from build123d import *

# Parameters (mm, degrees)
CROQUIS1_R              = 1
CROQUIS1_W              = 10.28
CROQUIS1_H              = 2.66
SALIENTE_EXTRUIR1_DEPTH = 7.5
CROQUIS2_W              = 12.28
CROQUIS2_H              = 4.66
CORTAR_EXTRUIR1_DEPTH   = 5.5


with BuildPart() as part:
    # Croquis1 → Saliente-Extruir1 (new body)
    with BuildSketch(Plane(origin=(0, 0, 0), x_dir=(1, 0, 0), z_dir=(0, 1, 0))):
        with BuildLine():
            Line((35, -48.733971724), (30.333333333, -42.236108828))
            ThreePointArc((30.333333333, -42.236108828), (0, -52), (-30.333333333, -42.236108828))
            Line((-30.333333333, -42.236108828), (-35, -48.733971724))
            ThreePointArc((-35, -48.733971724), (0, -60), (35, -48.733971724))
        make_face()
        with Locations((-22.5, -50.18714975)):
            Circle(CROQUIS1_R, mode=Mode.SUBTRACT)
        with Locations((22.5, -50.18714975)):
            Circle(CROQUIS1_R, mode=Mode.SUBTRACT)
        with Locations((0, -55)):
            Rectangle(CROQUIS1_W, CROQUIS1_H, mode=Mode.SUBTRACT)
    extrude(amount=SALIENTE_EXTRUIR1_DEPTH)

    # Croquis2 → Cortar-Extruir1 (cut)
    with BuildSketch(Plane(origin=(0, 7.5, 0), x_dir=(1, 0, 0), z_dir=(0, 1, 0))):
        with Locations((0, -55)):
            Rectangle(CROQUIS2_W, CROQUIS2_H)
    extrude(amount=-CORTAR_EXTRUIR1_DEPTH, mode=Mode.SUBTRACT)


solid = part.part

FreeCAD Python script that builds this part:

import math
import FreeCAD as App
import Part
import Sketcher
Q = App.Units.Quantity

doc = App.newDocument("Part")
params = doc.addObject("Spreadsheet::Sheet", "Params")
for row, (alias, value) in enumerate([
    ("sketch1_diameter", "2 mm"),
    ("sketch1_radius", "52 mm"),
    ("sketch1_radius2", "60 mm"),
    ("sketch1_width", "10.28 mm"),
    ("sketch1_height", "2.66 mm"),
    ("pad1_length", "7.5 mm"),
    ("sketch2_width", "12.28 mm"),
    ("sketch2_height", "4.66 mm"),
    ("pocket1_length", "5.5 mm"),
], start=1):
    params.set(f"A{row}", alias)
    params.set(f"B{row}", "=" + value)
    params.setAlias(f"B{row}", alias)

body = doc.addObject("PartDesign::Body", "Body")

# Sketch on XZ plane
sketch1 = doc.addObject("Sketcher::SketchObject", "Sketch")
body.addObject(sketch1)
sketch1.AttachmentSupport = (doc.XZ_Plane, [""])
sketch1.MapMode = "FlatFace"
sketch1.addGeometry(Part.LineSegment(App.Vector(35, 48.733972, 0), App.Vector(30.333333, 42.236109, 0)), False)
sketch1.addGeometry(Part.ArcOfCircle(Part.Circle(App.Vector(0, 0, 0), App.Vector(0, 0, 1), 52), math.radians(54.314665), math.radians(125.685335)), False)
sketch1.addGeometry(Part.LineSegment(App.Vector(-30.333333, 42.236109, 0), App.Vector(-35, 48.733972, 0)), False)
sketch1.addGeometry(Part.ArcOfCircle(Part.Circle(App.Vector(0, 0, 0), App.Vector(0, 0, 1), 60), math.radians(54.314665), math.radians(125.685335)), False)
sketch1.addGeometry(Part.LineSegment(App.Vector(5.14, 56.33, 0), App.Vector(-5.14, 56.33, 0)), False)
sketch1.addGeometry(Part.LineSegment(App.Vector(-5.14, 56.33, 0), App.Vector(-5.14, 53.67, 0)), False)
sketch1.addGeometry(Part.LineSegment(App.Vector(-5.14, 53.67, 0), App.Vector(5.14, 53.67, 0)), False)
sketch1.addGeometry(Part.LineSegment(App.Vector(5.14, 53.67, 0), App.Vector(5.14, 56.33, 0)), False)
sketch1.addGeometry(Part.Circle(App.Vector(-22.5, 50.18715, 0), App.Vector(0, 0, 1), 1), False)
sketch1.addGeometry(Part.Circle(App.Vector(22.5, 50.18715, 0), App.Vector(0, 0, 1), 1), False)
sketch1.addConstraint(Sketcher.Constraint("Coincident", 0, 2, 1, 1))
sketch1.addConstraint(Sketcher.Constraint("Coincident", 1, 2, 2, 1))
sketch1.addConstraint(Sketcher.Constraint("Coincident", 2, 2, 3, 2))
sketch1.addConstraint(Sketcher.Constraint("Coincident", 3, 1, 0, 1))
sketch1.addConstraint(Sketcher.Constraint("Coincident", 4, 2, 5, 1))
sketch1.addConstraint(Sketcher.Constraint("Coincident", 5, 2, 6, 1))
sketch1.addConstraint(Sketcher.Constraint("Coincident", 6, 2, 7, 1))
sketch1.addConstraint(Sketcher.Constraint("Coincident", 7, 2, 4, 1))
sketch1.addConstraint(Sketcher.Constraint("Horizontal", 4))
sketch1.addConstraint(Sketcher.Constraint("Vertical", 5))
sketch1.addConstraint(Sketcher.Constraint("Horizontal", 6))
sketch1.addConstraint(Sketcher.Constraint("Vertical", 7))
sketch1.addConstraint(Sketcher.Constraint("Coincident", 1, 3, -1, 1))
sketch1.addConstraint(Sketcher.Constraint("Coincident", 3, 3, -1, 1))
sketch1.addConstraint(Sketcher.Constraint("Equal", 8, 9))
sketch1.addConstraint(Sketcher.Constraint("Symmetric", 8, 3, 9, 3, -2))
sketch1.addConstraint(Sketcher.Constraint("Horizontal", 0, 2, 1, 2))
sketch1.addConstraint(Sketcher.Constraint("Horizontal", 2, 2, 3, 1))
sketch1.addConstraint(Sketcher.Constraint("Diameter", 8, Q("2 mm")))
sketch1.addConstraint(Sketcher.Constraint("Radius", 1, Q("52 mm")))
sketch1.addConstraint(Sketcher.Constraint("Radius", 3, Q("60 mm")))
sketch1.addConstraint(Sketcher.Constraint("DistanceX", 2, 2, -1, 1, Q("35 mm")))
sketch1.addConstraint(Sketcher.Constraint("DistanceX", 8, 3, 9, 3, Q("45 mm")))
sketch1.addConstraint(Sketcher.Constraint("DistanceX", 4, 2, 4, 1, Q("10.28 mm")))
sketch1.addConstraint(Sketcher.Constraint("DistanceY", 5, 2, 5, 1, Q("2.66 mm")))
sketch1.addConstraint(Sketcher.Constraint("DistanceX", 4, 2, -1, 1, Q("5.14 mm")))
sketch1.addConstraint(Sketcher.Constraint("DistanceY", -1, 1, 4, 2, Q("56.33 mm")))
sketch1.addConstraint(Sketcher.Constraint("DistanceY", -1, 1, 8, 3, Q("50.18715 mm")))
sketch1.addConstraint(Sketcher.Constraint("DistanceY", -1, 1, 0, 2, Q("42.236109 mm")))
sketch1.setExpression("Constraints[18]", "Params.sketch1_diameter")
sketch1.setExpression("Constraints[19]", "Params.sketch1_radius")
sketch1.setExpression("Constraints[20]", "Params.sketch1_radius2")
sketch1.setExpression("Constraints[23]", "Params.sketch1_width")
sketch1.setExpression("Constraints[24]", "Params.sketch1_height")
pad1 = doc.addObject("PartDesign::Pad", "Pad")
body.addObject(pad1)
pad1.Profile = sketch1
pad1.setExpression("Length", "Params.pad1_length")
pad1.Reversed = True

# Sketch on XZ plane
sketch2 = doc.addObject("Sketcher::SketchObject", "Sketch001")
body.addObject(sketch2)
sketch2.AttachmentSupport = (doc.XZ_Plane, [""])
sketch2.MapMode = "FlatFace"
sketch2.AttachmentOffset = App.Placement(App.Vector(0, 0, -7.5), App.Rotation())
sketch2.addGeometry(Part.LineSegment(App.Vector(-6.14, 52.67, 0), App.Vector(-6.14, 57.33, 0)), False)
sketch2.addGeometry(Part.LineSegment(App.Vector(-6.14, 57.33, 0), App.Vector(6.14, 57.33, 0)), False)
sketch2.addGeometry(Part.LineSegment(App.Vector(6.14, 57.33, 0), App.Vector(6.14, 52.67, 0)), False)
sketch2.addGeometry(Part.LineSegment(App.Vector(6.14, 52.67, 0), App.Vector(-6.14, 52.67, 0)), False)
sketch2.addConstraint(Sketcher.Constraint("Coincident", 0, 2, 1, 1))
sketch2.addConstraint(Sketcher.Constraint("Coincident", 1, 2, 2, 1))
sketch2.addConstraint(Sketcher.Constraint("Coincident", 2, 2, 3, 1))
sketch2.addConstraint(Sketcher.Constraint("Coincident", 3, 2, 0, 1))
sketch2.addConstraint(Sketcher.Constraint("Vertical", 0))
sketch2.addConstraint(Sketcher.Constraint("Horizontal", 1))
sketch2.addConstraint(Sketcher.Constraint("Vertical", 2))
sketch2.addConstraint(Sketcher.Constraint("Horizontal", 3))
sketch2.addConstraint(Sketcher.Constraint("DistanceX", 1, 1, 1, 2, Q("12.28 mm")))
sketch2.addConstraint(Sketcher.Constraint("DistanceY", 0, 1, 0, 2, Q("4.66 mm")))
sketch2.addConstraint(Sketcher.Constraint("DistanceX", 0, 2, -1, 1, Q("6.14 mm")))
sketch2.addConstraint(Sketcher.Constraint("DistanceY", -1, 1, 0, 2, Q("57.33 mm")))
sketch2.setExpression("Constraints[8]", "Params.sketch2_width")
sketch2.setExpression("Constraints[9]", "Params.sketch2_height")
pocket1 = doc.addObject("PartDesign::Pocket", "Pocket")
body.addObject(pocket1)
pocket1.Profile = sketch2
pocket1.setExpression("Length", "Params.pocket1_length")
pocket1.Reversed = True

doc.recompute()
